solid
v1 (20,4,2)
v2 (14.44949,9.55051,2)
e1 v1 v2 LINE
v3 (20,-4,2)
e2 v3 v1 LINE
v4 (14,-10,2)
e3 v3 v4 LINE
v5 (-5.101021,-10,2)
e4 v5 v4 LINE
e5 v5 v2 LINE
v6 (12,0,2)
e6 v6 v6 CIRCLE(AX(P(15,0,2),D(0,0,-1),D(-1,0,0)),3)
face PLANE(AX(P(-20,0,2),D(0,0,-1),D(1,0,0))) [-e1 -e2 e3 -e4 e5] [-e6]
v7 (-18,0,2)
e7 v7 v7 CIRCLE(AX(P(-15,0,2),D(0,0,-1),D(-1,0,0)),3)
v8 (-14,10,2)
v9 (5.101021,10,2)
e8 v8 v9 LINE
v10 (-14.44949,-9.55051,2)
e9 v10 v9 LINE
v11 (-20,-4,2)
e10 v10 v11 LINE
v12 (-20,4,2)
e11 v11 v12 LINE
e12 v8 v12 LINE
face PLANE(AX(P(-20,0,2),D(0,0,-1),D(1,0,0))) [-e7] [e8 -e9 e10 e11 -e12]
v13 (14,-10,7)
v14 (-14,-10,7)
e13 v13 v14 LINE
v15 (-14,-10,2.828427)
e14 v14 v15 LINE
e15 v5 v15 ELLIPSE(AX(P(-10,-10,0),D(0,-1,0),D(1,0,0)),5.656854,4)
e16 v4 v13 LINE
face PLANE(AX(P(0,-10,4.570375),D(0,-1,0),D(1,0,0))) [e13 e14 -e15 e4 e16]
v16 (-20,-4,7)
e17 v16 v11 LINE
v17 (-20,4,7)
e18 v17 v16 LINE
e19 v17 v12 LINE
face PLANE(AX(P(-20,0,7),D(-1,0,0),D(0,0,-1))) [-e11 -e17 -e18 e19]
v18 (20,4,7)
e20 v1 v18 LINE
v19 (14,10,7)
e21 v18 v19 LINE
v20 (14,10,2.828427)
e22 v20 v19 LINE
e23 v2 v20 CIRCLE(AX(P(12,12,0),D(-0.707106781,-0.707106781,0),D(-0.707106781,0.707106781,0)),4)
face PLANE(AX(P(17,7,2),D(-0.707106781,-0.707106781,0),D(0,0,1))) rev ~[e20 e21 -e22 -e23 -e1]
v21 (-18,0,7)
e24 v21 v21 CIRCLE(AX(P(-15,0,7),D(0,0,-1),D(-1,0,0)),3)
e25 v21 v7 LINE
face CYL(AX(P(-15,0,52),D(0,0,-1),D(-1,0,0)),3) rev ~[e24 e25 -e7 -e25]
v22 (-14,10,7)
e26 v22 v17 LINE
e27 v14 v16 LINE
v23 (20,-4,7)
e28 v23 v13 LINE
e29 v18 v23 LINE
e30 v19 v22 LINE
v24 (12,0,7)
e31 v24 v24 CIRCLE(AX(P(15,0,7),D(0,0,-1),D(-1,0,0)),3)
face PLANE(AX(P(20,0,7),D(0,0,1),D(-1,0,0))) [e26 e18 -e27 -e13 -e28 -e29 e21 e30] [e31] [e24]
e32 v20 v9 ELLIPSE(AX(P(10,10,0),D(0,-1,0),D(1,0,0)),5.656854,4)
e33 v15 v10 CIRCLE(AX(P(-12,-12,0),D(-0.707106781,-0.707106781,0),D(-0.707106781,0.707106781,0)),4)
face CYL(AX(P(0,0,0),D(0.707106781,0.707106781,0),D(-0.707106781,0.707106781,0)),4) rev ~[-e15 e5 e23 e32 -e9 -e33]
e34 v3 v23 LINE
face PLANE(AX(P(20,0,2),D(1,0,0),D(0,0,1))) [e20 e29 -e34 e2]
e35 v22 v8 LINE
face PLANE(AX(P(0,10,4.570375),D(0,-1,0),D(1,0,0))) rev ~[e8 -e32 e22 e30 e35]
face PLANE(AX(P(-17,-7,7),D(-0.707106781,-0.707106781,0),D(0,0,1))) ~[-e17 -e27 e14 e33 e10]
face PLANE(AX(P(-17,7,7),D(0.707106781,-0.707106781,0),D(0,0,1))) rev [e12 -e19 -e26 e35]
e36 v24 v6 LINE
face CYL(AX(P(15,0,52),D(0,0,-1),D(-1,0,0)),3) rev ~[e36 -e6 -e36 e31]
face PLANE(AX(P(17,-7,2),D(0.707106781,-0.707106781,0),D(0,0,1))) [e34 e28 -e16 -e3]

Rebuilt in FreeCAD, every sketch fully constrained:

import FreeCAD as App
import Part
import Sketcher
from FreeCAD import Vector


def edges_at(feature, points):
    """Names of the edges that pass closest to the given points."""
    edges = feature.Shape.Edges
    near = lambda p: min(range(len(edges)), key=lambda i: edges[i].distToShape(Part.Vertex(*p))[0])
    return sorted({f"Edge{near(p) + 1}" for p in points})


def add_polygon(sketch, points):
    """Adds a closed chain of lines whose ends are joined by coincident constraints."""
    first, n = sketch.GeometryCount, len(points)
    for a, b in zip(points, points[1:] + points[:1]):
        sketch.addGeometry(Part.LineSegment(App.Vector(*a, 0), App.Vector(*b, 0)), False)
    for i in range(n):
        sketch.addConstraint(Sketcher.Constraint("Coincident", first + i, 2, first + (i + 1) % n, 1))

doc = App.newDocument("Part")
body = doc.addObject("PartDesign::Body", "Body")

# Sketch on XZ plane
sketch1 = body.newObject("Sketcher::SketchObject", "Sketch")
sketch1.AttachmentSupport = (doc.getObject("XZ_Plane"), [""])
sketch1.MapMode = "FlatFace"
add_polygon(sketch1, [(20, 2), (20, 7), (-20, 7), (-20, 2)])  # lines 0-3
sketch1.addConstraint([
    Sketcher.Constraint("Vertical", 0),
    Sketcher.Constraint("Horizontal", 1),
    Sketcher.Constraint("Vertical", 2),
    Sketcher.Constraint("Horizontal", 3),
    Sketcher.Constraint("DistanceX", 1, 2, 1, 1, 40.0),
    Sketcher.Constraint("DistanceY", 0, 1, 0, 2, 5.0),
    Sketcher.Constraint("DistanceX", -1, 1, 0, 2, 20.0),
    Sketcher.Constraint("DistanceY", -1, 1, 0, 2, 7.0),
])
pad1 = body.newObject("PartDesign::Pad", "Pad")
pad1.Profile = sketch1
pad1.Length = 20
pad1.Midplane = True

# Sketch on XY plane
sketch2 = body.newObject("Sketcher::SketchObject", "Sketch001")
sketch2.AttachmentSupport = (doc.getObject("XY_Plane"), [""])
sketch2.MapMode = "FlatFace"
sketch2.AttachmentOffset = App.Placement(Vector(0, 0, 7), App.Rotation())
sketch2.addGeometry([
    Part.Circle(Vector(15, 0, 0), Vector(0, 0, 1), 3),
    Part.Circle(Vector(-15, 0, 0), Vector(0, 0, 1), 3),
], False)
sketch2.addConstraint([
    Sketcher.Constraint("Equal", 0, 1),
    Sketcher.Constraint("Symmetric", 0, 3, 1, 3, -1, 1),
    Sketcher.Constraint("PointOnObject", 0, 3, -1),
    Sketcher.Constraint("Diameter", 0, 6.0),
    Sketcher.Constraint("DistanceX", -1, 1, 0, 3, 15.0),
])
doc.recompute()
hole = body.newObject("PartDesign::Hole", "Hole")
hole.Profile = sketch2
hole.ThreadType = "None"
hole.Diameter = 6
hole.DepthType = "ThroughAll"

# Sketch on an angled plane
sketch3 = body.newObject("Sketcher::SketchObject", "Sketch002")
sketch3.Placement = App.Placement(Vector(0, 0, 0), App.Rotation(Vector(-0.707106781, 0.707106781, 0), Vector(0, 0, 0.999999999), Vector(0.707106781, 0.707106781, 0), "ZXY"))
sketch3.addGeometry(Part.Circle(Vector(0, 0, 0), Vector(0, 0, 1), 4), False)
sketch3.addConstraint([
    Sketcher.Constraint("Coincident", 0, 3, -1, 1),
    Sketcher.Constraint("Diameter", 0, 8.0),
])
pocket1 = body.newObject("PartDesign::Pocket", "Pocket")
pocket1.Profile = sketch3
pocket1.Length = 60
pocket1.Midplane = True
doc.recompute()

chamfer = body.newObject("PartDesign::Chamfer", "Chamfer")
chamfer.Base = (pocket1, edges_at(pocket1, [
    (-20, -10, 4.5),
    (20, 10, 4.5),
    (20, -10, 4.5),
    (-20, 10, 4.5),
]))
chamfer.Size = 6

doc.recompute()
